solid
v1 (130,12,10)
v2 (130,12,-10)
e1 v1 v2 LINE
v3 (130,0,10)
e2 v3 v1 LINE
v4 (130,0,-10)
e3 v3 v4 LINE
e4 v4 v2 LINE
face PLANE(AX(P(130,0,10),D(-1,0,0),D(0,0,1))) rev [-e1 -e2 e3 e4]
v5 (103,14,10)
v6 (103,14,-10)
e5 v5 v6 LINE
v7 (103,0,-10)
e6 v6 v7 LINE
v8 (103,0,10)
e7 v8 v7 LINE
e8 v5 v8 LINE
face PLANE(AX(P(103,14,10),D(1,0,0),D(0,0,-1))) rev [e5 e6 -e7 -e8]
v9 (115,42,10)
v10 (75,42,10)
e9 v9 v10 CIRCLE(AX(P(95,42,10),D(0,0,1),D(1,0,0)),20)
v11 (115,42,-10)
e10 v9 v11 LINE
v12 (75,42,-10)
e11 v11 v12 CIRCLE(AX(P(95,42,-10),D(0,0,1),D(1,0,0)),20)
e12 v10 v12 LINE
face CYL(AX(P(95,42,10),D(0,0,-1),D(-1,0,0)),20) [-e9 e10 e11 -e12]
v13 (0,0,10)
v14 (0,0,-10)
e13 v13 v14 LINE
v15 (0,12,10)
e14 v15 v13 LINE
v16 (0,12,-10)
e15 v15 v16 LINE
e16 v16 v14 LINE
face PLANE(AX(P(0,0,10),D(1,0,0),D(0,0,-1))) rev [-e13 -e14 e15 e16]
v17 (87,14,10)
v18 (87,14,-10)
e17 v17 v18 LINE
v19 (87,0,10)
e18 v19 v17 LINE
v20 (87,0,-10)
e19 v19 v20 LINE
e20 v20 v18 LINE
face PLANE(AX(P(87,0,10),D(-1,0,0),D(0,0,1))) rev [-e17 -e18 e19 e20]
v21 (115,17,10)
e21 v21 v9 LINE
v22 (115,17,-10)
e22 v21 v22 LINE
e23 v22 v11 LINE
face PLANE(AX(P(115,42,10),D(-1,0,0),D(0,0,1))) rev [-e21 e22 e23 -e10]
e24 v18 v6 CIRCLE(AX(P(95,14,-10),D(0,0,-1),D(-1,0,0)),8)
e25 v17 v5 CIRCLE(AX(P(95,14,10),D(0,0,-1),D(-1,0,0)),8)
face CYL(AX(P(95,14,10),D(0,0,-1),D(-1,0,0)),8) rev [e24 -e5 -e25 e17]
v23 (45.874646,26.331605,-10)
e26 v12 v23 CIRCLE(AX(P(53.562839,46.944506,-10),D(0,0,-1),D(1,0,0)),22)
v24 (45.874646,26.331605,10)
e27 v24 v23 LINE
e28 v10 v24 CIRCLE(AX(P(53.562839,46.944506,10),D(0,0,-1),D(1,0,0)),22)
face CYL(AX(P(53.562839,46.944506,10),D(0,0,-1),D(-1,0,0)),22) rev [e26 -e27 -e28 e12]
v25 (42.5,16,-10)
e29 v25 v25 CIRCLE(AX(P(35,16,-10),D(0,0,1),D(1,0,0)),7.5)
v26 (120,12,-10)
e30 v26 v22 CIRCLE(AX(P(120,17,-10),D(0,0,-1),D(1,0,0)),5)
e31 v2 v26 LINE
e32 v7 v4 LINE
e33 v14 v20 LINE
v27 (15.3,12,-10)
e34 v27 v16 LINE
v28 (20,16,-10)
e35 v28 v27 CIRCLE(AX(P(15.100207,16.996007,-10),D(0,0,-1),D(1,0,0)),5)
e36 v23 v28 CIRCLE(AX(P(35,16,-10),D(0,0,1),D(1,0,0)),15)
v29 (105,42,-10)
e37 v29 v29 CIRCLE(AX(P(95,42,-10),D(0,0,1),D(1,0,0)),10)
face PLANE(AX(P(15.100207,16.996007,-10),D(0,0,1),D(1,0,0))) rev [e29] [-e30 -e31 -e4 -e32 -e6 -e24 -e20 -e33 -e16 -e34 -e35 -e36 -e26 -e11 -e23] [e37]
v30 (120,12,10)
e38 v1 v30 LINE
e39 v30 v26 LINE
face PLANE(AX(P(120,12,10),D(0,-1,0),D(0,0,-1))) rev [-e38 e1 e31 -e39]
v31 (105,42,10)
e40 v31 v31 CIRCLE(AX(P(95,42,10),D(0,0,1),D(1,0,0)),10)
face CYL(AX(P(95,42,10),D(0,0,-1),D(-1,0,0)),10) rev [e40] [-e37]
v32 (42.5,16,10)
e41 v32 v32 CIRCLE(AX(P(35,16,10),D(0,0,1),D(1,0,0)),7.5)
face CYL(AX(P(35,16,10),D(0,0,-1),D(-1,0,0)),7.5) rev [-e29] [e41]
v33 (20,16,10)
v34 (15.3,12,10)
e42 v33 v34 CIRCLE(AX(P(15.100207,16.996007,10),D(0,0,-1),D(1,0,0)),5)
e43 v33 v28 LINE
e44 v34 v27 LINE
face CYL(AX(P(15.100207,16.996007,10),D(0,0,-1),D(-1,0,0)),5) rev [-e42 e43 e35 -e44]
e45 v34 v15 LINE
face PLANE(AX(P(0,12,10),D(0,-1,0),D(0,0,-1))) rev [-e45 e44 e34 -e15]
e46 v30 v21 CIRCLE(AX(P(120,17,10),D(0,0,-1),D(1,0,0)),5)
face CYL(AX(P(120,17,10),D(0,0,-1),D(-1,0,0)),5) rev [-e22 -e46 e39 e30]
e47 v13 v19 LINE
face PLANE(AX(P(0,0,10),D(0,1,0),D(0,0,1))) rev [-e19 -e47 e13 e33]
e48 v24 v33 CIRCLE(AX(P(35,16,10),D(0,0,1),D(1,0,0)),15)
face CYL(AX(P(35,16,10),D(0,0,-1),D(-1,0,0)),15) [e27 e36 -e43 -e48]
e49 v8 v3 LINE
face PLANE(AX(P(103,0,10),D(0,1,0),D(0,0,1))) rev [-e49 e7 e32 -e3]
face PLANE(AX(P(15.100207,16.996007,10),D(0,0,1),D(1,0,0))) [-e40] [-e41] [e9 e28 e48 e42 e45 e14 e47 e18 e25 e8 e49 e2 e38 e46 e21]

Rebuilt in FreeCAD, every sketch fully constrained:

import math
import FreeCAD as App
import Part
import Sketcher

doc = App.newDocument("Part")
params = doc.addObject("Spreadsheet::Sheet", "Params")
for row, (alias, value) in enumerate([
    ("sketch1_diameter", "15 mm"),
    ("sketch1_diameter2", "20 mm"),
    ("sketch1_radius", "8 mm"),
    ("sketch1_radius2", "5 mm"),
    ("sketch1_radius3", "20 mm"),
    ("pad1_length", "20 mm"),
], start=1):
    params.set(f"A{row}", alias)
    params.set(f"B{row}", "=" + value)
    params.setAlias(f"B{row}", alias)

body = doc.addObject("PartDesign::Body", "Body")

sketch1 = body.newObject("Sketcher::SketchObject", "Sketch")
sketch1.AttachmentSupport = (doc.getObject("XY_Plane"), [""])
sketch1.MapMode = "FlatFace"
sketch1.addGeometry(Part.LineSegment(App.Vector(0, 0, 0), App.Vector(87, 0, 0)), False)
sketch1.addGeometry(Part.LineSegment(App.Vector(87, 0, 0), App.Vector(87, 14, 0)), False)
sketch1.addGeometry(Part.ArcOfCircle(Part.Circle(App.Vector(95, 14, 0), App.Vector(0, 0, 1), 8), math.radians(0), math.radians(180)), False)
sketch1.addGeometry(Part.LineSegment(App.Vector(103, 14, 0), App.Vector(103, 0, 0)), False)
sketch1.addGeometry(Part.LineSegment(App.Vector(103, 0, 0), App.Vector(130, 0, 0)), False)
sketch1.addGeometry(Part.LineSegment(App.Vector(130, 0, 0), App.Vector(130, 12, 0)), False)
sketch1.addGeometry(Part.LineSegment(App.Vector(130, 12, 0), App.Vector(120, 12, 0)), False)
sketch1.addGeometry(Part.ArcOfCircle(Part.Circle(App.Vector(120, 17, 0), App.Vector(0, 0, 1), 5), math.radians(180), math.radians(270)), False)
sketch1.addGeometry(Part.LineSegment(App.Vector(115, 17, 0), App.Vector(115, 42, 0)), False)
sketch1.addGeometry(Part.ArcOfCircle(Part.Circle(App.Vector(95, 42, 0), App.Vector(0, 0, 1), 20), math.radians(0), math.radians(180)), False)
sketch1.addGeometry(Part.ArcOfCircle(Part.Circle(App.Vector(53.562839, 46.944506, 0), App.Vector(0, 0, 1), 22), math.radians(-110.454493), math.radians(-12.988194)), False)
sketch1.addGeometry(Part.ArcOfCircle(Part.Circle(App.Vector(35, 16, 0), App.Vector(0, 0, 1), 15), math.radians(43.533114), math.radians(180)), False)
sketch1.addGeometry(Part.ArcOfCircle(Part.Circle(App.Vector(15.100207, 16.996007, 0), App.Vector(0, 0, 1), 5), math.radians(-87.709932), math.radians(-11.490259)), False)
sketch1.addGeometry(Part.LineSegment(App.Vector(15.3, 12, 0), App.Vector(0, 12, 0)), False)
sketch1.addGeometry(Part.LineSegment(App.Vector(0, 12, 0), App.Vector(0, 0, 0)), False)
sketch1.addGeometry(Part.Circle(App.Vector(35, 16, 0), App.Vector(0, 0, 1), 7.5), False)
sketch1.addGeometry(Part.Circle(App.Vector(95, 42, 0), App.Vector(0, 0, 1), 10), False)
sketch1.addConstraint(Sketcher.Constraint("Coincident", 0, 2, 1, 1))
sketch1.addConstraint(Sketcher.Constraint("Tangent", 1, 2, 2, 2))
sketch1.addConstraint(Sketcher.Constraint("Tangent", 2, 1, 3, 1))
sketch1.addConstraint(Sketcher.Constraint("Coincident", 3, 2, 4, 1))
sketch1.addConstraint(Sketcher.Constraint("Coincident", 4, 2, 5, 1))
sketch1.addConstraint(Sketcher.Constraint("Coincident", 5, 2, 6, 1))
sketch1.addConstraint(Sketcher.Constraint("Tangent", 6, 2, 7, 2))
sketch1.addConstraint(Sketcher.Constraint("Tangent", 7, 1, 8, 1))
sketch1.addConstraint(Sketcher.Constraint("Tangent", 8, 2, 9, 1))
sketch1.addConstraint(Sketcher.Constraint("Coincident", 9, 2, 10, 2))
sketch1.addConstraint(Sketcher.Constraint("Coincident", 10, 1, 11, 1))
sketch1.addConstraint(Sketcher.Constraint("Coincident", 11, 2, 12, 2))
sketch1.addConstraint(Sketcher.Constraint("Coincident", 12, 1, 13, 1))
sketch1.addConstraint(Sketcher.Constraint("Coincident", 13, 2, 14, 1))
sketch1.addConstraint(Sketcher.Constraint("Coincident", 14, 2, 0, 1))
sketch1.addConstraint(Sketcher.Constraint("Horizontal", 0))
sketch1.addConstraint(Sketcher.Constraint("Vertical", 1))
sketch1.addConstraint(Sketcher.Constraint("Vertical", 3))
sketch1.addConstraint(Sketcher.Constraint("Horizontal", 4))
sketch1.addConstraint(Sketcher.Constraint("Vertical", 5))
sketch1.addConstraint(Sketcher.Constraint("Horizontal", 6))
sketch1.addConstraint(Sketcher.Constraint("Vertical", 8))
sketch1.addConstraint(Sketcher.Constraint("Horizontal", 13))
sketch1.addConstraint(Sketcher.Constraint("Vertical", 14))
sketch1.addConstraint(Sketcher.Constraint("Coincident", 14, 2, -1, 1))
sketch1.addConstraint(Sketcher.Constraint("Coincident", 15, 3, 11, 3))
sketch1.addConstraint(Sketcher.Constraint("Coincident", 16, 3, 9, 3))
sketch1.addConstraint(Sketcher.Constraint("Equal", 7, 12))
sketch1.addConstraint(Sketcher.Constraint("PointOnObject", 3, 2, -1))
sketch1.addConstraint(Sketcher.Constraint("Horizontal", 8, 2, 9, 2))
sketch1.addConstraint(Sketcher.Constraint("Horizontal", 15, 3, 11, 2))
sketch1.addConstraint(Sketcher.Constraint("Horizontal", 6, 2, 12, 1))
sketch1.addConstraint(Sketcher.Constraint("Vertical", 2, 3, 9, 3))
sketch1.addConstraint(Sketcher.Constraint("Diameter", 15, 15.0))
sketch1.addConstraint(Sketcher.Constraint("Diameter", 16, 20.0))
sketch1.addConstraint(Sketcher.Constraint("Radius", 2, 8.0))
sketch1.addConstraint(Sketcher.Constraint("Radius", 7, 5.0))
sketch1.addConstraint(Sketcher.Constraint("Radius", 9, 20.0))
sketch1.addConstraint(Sketcher.Constraint("Radius", 10, 22.0))
sketch1.addConstraint(Sketcher.Constraint("Radius", 11, 15.0))
sketch1.addConstraint(Sketcher.Constraint("DistanceX", 0, 1, 0, 2, 87.0))
sketch1.addConstraint(Sketcher.Constraint("DistanceX", 4, 1, 4, 2, 27.0))
sketch1.addConstraint(Sketcher.Constraint("DistanceY", 1, 1, 1, 2, 14.0))
sketch1.addConstraint(Sketcher.Constraint("DistanceY", 5, 1, 5, 2, 12.0))
sketch1.addConstraint(Sketcher.Constraint("DistanceY", 8, 1, 8, 2, 25.0))
sketch1.addConstraint(Sketcher.Constraint("DistanceX", 13, 2, 13, 1, 15.3))
sketch1.addConstraint(Sketcher.Constraint("DistanceX", -1, 1, 11, 3, 35.0))
sketch1.addConstraint(Sketcher.Constraint("DistanceY", -1, 1, 11, 3, 16.0))
sketch1.addConstraint(Sketcher.Constraint("DistanceY", 12, 3, 10, 3, 29.9485))
sketch1.setExpression("Constraints[33]", "Params.sketch1_diameter")
sketch1.setExpression("Constraints[34]", "Params.sketch1_diameter2")
sketch1.setExpression("Constraints[35]", "Params.sketch1_radius")
sketch1.setExpression("Constraints[36]", "Params.sketch1_radius2")
sketch1.setExpression("Constraints[37]", "Params.sketch1_radius3")
pad1 = body.newObject("PartDesign::Pad", "Pad")
pad1.Profile = sketch1
pad1.setExpression("Length", "Params.pad1_length")
pad1.Midplane = True

doc.recompute()
